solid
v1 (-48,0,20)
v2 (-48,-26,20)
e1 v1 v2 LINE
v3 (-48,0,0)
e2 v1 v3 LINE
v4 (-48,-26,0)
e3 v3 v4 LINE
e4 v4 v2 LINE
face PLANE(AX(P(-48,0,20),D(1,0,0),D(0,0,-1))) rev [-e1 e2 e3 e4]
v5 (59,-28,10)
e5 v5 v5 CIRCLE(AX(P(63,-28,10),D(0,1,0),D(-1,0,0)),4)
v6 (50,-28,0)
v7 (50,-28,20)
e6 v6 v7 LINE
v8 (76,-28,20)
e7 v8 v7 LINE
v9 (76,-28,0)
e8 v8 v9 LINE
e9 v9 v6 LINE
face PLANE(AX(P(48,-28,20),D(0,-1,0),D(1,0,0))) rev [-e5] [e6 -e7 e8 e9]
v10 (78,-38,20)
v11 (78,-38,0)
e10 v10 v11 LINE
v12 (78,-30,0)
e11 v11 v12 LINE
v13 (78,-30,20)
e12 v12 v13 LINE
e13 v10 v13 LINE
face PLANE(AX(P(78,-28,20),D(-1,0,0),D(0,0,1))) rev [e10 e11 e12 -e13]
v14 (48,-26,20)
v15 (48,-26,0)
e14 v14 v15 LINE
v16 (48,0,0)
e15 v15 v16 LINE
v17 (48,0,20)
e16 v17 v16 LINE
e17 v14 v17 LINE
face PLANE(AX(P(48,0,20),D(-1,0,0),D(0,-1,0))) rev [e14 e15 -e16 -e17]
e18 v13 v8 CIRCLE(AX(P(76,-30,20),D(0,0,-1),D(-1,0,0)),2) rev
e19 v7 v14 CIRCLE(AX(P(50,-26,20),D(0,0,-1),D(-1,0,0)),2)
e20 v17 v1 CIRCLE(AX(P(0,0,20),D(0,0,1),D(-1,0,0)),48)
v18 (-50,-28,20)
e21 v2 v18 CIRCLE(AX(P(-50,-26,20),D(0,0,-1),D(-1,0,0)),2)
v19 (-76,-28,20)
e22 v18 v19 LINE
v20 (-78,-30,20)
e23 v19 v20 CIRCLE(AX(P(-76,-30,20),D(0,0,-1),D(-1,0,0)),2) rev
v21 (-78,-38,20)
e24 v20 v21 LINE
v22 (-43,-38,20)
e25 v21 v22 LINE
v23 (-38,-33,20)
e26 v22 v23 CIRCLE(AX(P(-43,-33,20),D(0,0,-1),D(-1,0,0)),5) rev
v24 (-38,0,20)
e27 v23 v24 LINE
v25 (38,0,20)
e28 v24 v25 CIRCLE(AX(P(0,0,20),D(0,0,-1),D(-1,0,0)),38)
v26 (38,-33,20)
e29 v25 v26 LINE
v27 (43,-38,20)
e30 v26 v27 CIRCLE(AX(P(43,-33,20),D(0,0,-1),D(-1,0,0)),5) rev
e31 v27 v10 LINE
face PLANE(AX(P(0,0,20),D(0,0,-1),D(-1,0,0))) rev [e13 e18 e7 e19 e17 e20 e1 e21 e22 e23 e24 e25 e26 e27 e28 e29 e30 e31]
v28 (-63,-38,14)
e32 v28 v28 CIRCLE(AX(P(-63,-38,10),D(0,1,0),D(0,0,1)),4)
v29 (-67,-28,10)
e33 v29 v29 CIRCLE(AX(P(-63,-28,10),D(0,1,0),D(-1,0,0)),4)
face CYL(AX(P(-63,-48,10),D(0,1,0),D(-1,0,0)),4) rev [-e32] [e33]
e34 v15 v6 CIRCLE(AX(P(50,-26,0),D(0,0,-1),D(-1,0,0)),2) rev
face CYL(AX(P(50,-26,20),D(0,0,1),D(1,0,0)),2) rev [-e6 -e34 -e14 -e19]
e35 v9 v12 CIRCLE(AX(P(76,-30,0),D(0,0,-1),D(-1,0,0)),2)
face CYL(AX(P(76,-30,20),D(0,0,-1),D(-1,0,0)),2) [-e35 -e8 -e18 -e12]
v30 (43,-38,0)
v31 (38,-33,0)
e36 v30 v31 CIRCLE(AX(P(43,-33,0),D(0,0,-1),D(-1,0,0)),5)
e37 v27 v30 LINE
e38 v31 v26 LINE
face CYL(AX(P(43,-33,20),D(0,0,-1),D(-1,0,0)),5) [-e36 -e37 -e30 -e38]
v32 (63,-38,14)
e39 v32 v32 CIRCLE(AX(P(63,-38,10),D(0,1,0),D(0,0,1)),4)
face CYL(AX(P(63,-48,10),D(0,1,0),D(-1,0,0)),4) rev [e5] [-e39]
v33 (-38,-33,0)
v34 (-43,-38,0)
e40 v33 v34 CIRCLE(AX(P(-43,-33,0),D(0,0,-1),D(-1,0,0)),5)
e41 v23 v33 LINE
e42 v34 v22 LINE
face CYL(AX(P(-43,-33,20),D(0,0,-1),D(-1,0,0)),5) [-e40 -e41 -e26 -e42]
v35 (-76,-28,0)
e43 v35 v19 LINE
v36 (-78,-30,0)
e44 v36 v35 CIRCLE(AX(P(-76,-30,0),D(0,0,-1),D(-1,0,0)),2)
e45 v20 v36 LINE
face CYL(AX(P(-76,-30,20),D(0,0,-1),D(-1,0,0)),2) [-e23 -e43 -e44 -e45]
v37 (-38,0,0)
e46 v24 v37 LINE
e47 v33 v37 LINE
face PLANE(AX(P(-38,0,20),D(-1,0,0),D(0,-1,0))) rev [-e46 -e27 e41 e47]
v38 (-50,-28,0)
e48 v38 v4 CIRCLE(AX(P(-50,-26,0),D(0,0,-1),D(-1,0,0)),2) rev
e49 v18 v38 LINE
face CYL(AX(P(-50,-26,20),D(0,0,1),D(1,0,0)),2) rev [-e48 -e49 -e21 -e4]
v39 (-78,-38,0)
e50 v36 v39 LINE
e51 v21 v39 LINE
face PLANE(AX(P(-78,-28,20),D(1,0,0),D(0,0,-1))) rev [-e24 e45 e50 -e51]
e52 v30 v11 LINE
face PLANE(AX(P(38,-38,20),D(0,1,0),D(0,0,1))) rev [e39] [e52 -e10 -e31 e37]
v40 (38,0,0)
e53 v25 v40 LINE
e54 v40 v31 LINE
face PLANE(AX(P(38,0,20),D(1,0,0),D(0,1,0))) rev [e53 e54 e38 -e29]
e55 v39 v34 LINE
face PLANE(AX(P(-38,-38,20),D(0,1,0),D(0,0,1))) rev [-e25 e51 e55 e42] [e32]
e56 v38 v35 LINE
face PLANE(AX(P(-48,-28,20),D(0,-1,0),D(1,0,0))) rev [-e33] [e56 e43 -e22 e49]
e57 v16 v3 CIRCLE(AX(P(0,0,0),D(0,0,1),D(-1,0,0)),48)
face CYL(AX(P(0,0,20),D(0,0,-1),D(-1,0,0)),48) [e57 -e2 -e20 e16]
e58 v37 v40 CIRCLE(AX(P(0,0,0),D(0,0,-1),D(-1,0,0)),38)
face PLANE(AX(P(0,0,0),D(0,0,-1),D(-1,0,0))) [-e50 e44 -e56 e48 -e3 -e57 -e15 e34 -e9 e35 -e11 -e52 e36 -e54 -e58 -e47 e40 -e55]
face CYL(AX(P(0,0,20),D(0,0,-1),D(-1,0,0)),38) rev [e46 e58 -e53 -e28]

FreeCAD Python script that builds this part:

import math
import FreeCAD as App
import Part
import Sketcher


def edges_at(feature, points):
    """Names of the edges that pass closest to the given points."""
    edges = feature.Shape.Edges
    near = lambda p: min(range(len(edges)), key=lambda i: edges[i].distToShape(Part.Vertex(*p))[0])
    return sorted({f"Edge{near(p) + 1}" for p in points})

doc = App.newDocument("Part")
params = doc.addObject("Spreadsheet::Sheet", "Params")
for row, (alias, value) in enumerate([
    ("sketch1_radius", "38 mm"),
    ("sketch1_radius2", "48 mm"),
    ("sketch1_width", "40 mm"),
    ("sketch1_height", "38 mm"),
    ("sketch1_height2", "10 mm"),
    ("pad1_length", "20 mm"),
    ("sketch2_diameter", "8 mm"),
    ("pocket1_length", "20 mm"),
    ("fillet_radius", "2 mm"),
    ("fillet2_radius", "5 mm"),
], start=1):
    params.set(f"A{row}", alias)
    params.set(f"B{row}", "=" + value)
    params.setAlias(f"B{row}", alias)

body = doc.addObject("PartDesign::Body", "Body")

# Sketch on XY plane
sketch1 = body.newObject("Sketcher::SketchObject", "Sketch")
sketch1.AttachmentSupport = (doc.getObject("XY_Plane"), [""])
sketch1.MapMode = "FlatFace"
sketch1.addGeometry(Part.LineSegment(App.Vector(-78, -38, 0), App.Vector(-38, -38, 0)), False)
sketch1.addGeometry(Part.LineSegment(App.Vector(-38, -38, 0), App.Vector(-38, 0, 0)), False)
sketch1.addGeometry(Part.ArcOfCircle(Part.Circle(App.Vector(0, 0, 0), App.Vector(0, 0, 1), 38), math.radians(0), math.radians(180)), False)
sketch1.addGeometry(Part.LineSegment(App.Vector(38, 0, 0), App.Vector(38, -38, 0)), False)
sketch1.addGeometry(Part.LineSegment(App.Vector(38, -38, 0), App.Vector(78, -38, 0)), False)
sketch1.addGeometry(Part.LineSegment(App.Vector(78, -38, 0), App.Vector(78, -28, 0)), False)
sketch1.addGeometry(Part.LineSegment(App.Vector(78, -28, 0), App.Vector(48, -28, 0)), False)
sketch1.addGeometry(Part.LineSegment(App.Vector(48, -28, 0), App.Vector(48, 0, 0)), False)
sketch1.addGeometry(Part.ArcOfCircle(Part.Circle(App.Vector(0, 0, 0), App.Vector(0, 0, 1), 48), math.radians(0), math.radians(180)), False)
sketch1.addGeometry(Part.LineSegment(App.Vector(-48, 0, 0), App.Vector(-48, -28, 0)), False)
sketch1.addGeometry(Part.LineSegment(App.Vector(-48, -28, 0), App.Vector(-78, -28, 0)), False)
sketch1.addGeometry(Part.LineSegment(App.Vector(-78, -28, 0), App.Vector(-78, -38, 0)), False)
sketch1.addConstraint(Sketcher.Constraint("Coincident", 0, 2, 1, 1))
sketch1.addConstraint(Sketcher.Constraint("Tangent", 1, 2, 2, 2))
sketch1.addConstraint(Sketcher.Constraint("Tangent", 2, 1, 3, 1))
sketch1.addConstraint(Sketcher.Constraint("Coincident", 3, 2, 4, 1))
sketch1.addConstraint(Sketcher.Constraint("Coincident", 4, 2, 5, 1))
sketch1.addConstraint(Sketcher.Constraint("Coincident", 5, 2, 6, 1))
sketch1.addConstraint(Sketcher.Constraint("Coincident", 6, 2, 7, 1))
sketch1.addConstraint(Sketcher.Constraint("Tangent", 7, 2, 8, 1))
sketch1.addConstraint(Sketcher.Constraint("Tangent", 8, 2, 9, 1))
sketch1.addConstraint(Sketcher.Constraint("Coincident", 9, 2, 10, 1))
sketch1.addConstraint(Sketcher.Constraint("Coincident", 10, 2, 11, 1))
sketch1.addConstraint(Sketcher.Constraint("Coincident", 11, 2, 0, 1))
sketch1.addConstraint(Sketcher.Constraint("Horizontal", 0))
sketch1.addConstraint(Sketcher.Constraint("Vertical", 1))
sketch1.addConstraint(Sketcher.Constraint("Vertical", 3))
sketch1.addConstraint(Sketcher.Constraint("Horizontal", 4))
sketch1.addConstraint(Sketcher.Constraint("Vertical", 5))
sketch1.addConstraint(Sketcher.Constraint("Horizontal", 6))
sketch1.addConstraint(Sketcher.Constraint("Vertical", 7))
sketch1.addConstraint(Sketcher.Constraint("Vertical", 9))
sketch1.addConstraint(Sketcher.Constraint("Horizontal", 10))
sketch1.addConstraint(Sketcher.Constraint("Vertical", 11))
sketch1.addConstraint(Sketcher.Constraint("Coincident", 2, 3, -1, 1))
sketch1.addConstraint(Sketcher.Constraint("Coincident", 8, 3, -1, 1))
sketch1.addConstraint(Sketcher.Constraint("Symmetric", 5, 2, 10, 2, -2))
sketch1.addConstraint(Sketcher.Constraint("Horizontal", 0, 2, 3, 2))
sketch1.addConstraint(Sketcher.Constraint("Radius", 2, 38.0))
sketch1.addConstraint(Sketcher.Constraint("Radius", 8, 48.0))
sketch1.addConstraint(Sketcher.Constraint("DistanceX", 0, 1, 0, 2, 40.0))
sketch1.addConstraint(Sketcher.Constraint("DistanceY", 1, 1, 1, 2, 38.0))
sketch1.addConstraint(Sketcher.Constraint("DistanceY", 5, 1, 5, 2, 10.0))
sketch1.setExpression("Constraints[26]", "Params.sketch1_radius")
sketch1.setExpression("Constraints[27]", "Params.sketch1_radius2")
sketch1.setExpression("Constraints[28]", "Params.sketch1_width")
sketch1.setExpression("Constraints[29]", "Params.sketch1_height")
sketch1.setExpression("Constraints[30]", "Params.sketch1_height2")
pad1 = body.newObject("PartDesign::Pad", "Pad")
pad1.Profile = sketch1
pad1.setExpression("Length", "Params.pad1_length")

# Sketch on XZ plane
sketch2 = body.newObject("Sketcher::SketchObject", "Sketch001")
sketch2.AttachmentSupport = (doc.getObject("XZ_Plane"), [""])
sketch2.MapMode = "FlatFace"
sketch2.AttachmentOffset = App.Placement(App.Vector(0, 0, 28), App.Rotation())
sketch2.addGeometry(Part.Circle(App.Vector(-63, 10, 0), App.Vector(0, 0, 1), 4), False)
sketch2.addGeometry(Part.Circle(App.Vector(63, 10, 0), App.Vector(0, 0, 1), 4), False)
sketch2.addConstraint(Sketcher.Constraint("Equal", 0, 1))
sketch2.addConstraint(Sketcher.Constraint("Symmetric", 0, 3, 1, 3, -2))
sketch2.addConstraint(Sketcher.Constraint("Diameter", 0, 8.0))
sketch2.addConstraint(Sketcher.Constraint("DistanceX", 0, 3, -1, 1, 63.0))
sketch2.addConstraint(Sketcher.Constraint("DistanceY", -1, 1, 0, 3, 10.0))
sketch2.setExpression("Constraints[2]", "Params.sketch2_diameter")
pocket1 = body.newObject("PartDesign::Pocket", "Pocket")
pocket1.Profile = sketch2
pocket1.setExpression("Length", "Params.pocket1_length")
pocket1.Reversed = True
doc.recompute()

fillet = body.newObject("PartDesign::Fillet", "Fillet")
fillet.Base = (pocket1, edges_at(pocket1, [
    (48, -28, 10),
    (78, -28, 10),
    (-78, -28, 10),
    (-48, -28, 10),
]))
fillet.setExpression("Radius", "Params.fillet_radius")
doc.recompute()

fillet2 = body.newObject("PartDesign::Fillet", "Fillet001")
fillet2.Base = (fillet, edges_at(fillet, [(38, -38, 10), (-38, -38, 10)]))
fillet2.setExpression("Radius", "Params.fillet2_radius")

doc.recompute()
